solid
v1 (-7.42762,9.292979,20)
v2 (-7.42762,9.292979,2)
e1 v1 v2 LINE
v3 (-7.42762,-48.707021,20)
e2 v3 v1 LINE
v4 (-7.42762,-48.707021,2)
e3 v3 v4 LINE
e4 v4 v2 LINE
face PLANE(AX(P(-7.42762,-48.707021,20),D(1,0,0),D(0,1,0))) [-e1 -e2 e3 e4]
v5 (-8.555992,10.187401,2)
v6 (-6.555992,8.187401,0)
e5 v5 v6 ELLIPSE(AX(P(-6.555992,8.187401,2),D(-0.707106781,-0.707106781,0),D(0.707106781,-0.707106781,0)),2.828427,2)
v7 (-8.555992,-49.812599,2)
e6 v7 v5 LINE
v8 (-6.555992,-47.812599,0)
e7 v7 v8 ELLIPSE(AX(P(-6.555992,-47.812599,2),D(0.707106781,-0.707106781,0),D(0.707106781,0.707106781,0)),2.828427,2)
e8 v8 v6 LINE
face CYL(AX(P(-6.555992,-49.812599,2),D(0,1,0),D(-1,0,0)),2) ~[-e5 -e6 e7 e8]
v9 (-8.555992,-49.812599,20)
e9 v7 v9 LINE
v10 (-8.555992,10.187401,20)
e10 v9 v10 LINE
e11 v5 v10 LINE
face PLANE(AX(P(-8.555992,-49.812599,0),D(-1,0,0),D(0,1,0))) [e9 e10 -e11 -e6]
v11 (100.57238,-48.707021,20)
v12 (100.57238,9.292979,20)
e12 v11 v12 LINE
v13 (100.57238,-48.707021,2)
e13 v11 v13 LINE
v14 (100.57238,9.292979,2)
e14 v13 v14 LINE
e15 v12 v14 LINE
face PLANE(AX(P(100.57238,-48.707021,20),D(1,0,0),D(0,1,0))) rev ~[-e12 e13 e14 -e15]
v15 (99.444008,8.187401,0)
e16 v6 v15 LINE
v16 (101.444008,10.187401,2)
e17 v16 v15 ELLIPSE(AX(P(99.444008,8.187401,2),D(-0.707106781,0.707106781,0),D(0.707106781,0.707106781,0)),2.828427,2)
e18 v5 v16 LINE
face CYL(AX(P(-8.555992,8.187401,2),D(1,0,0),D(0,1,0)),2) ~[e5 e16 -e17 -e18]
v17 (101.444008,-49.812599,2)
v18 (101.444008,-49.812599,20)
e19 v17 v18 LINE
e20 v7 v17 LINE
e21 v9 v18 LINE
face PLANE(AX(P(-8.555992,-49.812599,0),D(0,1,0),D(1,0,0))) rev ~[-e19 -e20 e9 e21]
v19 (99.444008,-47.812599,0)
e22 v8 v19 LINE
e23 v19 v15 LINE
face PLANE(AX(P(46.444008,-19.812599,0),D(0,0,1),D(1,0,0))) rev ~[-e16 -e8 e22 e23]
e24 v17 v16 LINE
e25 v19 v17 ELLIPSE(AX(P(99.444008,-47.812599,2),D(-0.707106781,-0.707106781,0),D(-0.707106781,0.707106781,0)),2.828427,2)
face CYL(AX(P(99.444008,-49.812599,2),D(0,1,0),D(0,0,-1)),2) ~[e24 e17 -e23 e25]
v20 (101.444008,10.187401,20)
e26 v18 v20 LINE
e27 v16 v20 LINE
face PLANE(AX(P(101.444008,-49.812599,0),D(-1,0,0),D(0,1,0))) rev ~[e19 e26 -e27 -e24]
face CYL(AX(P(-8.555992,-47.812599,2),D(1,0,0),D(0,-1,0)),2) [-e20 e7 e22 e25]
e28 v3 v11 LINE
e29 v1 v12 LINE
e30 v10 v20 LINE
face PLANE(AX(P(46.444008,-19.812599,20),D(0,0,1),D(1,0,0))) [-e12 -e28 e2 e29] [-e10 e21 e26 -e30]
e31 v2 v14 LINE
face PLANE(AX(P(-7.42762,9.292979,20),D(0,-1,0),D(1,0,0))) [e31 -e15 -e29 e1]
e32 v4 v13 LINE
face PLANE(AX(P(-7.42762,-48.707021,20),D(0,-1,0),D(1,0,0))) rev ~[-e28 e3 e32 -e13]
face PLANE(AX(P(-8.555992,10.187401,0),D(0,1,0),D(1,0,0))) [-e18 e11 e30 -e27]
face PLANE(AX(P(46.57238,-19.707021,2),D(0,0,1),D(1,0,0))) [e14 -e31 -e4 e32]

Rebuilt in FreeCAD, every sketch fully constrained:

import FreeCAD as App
import Part
import Sketcher
from FreeCAD import Vector


def edges_at(feature, points):
    """Names of the edges that pass closest to the given points."""
    edges = feature.Shape.Edges
    near = lambda p: min(range(len(edges)), key=lambda i: edges[i].distToShape(Part.Vertex(*p))[0])
    return sorted({f"Edge{near(p) + 1}" for p in points})

doc = App.newDocument("Part")
params = doc.addObject("Spreadsheet::Sheet", "Params")
for row, (alias, value) in enumerate([
    ("sketch1_width", "110 mm"),
    ("sketch1_height", "60 mm"),
    ("pad1_length", "20 mm"),
    ("sketch2_width", "108 mm"),
    ("sketch2_height", "58 mm"),
    ("pocket1_length", "18 mm"),
    ("fillet_radius", "2 mm"),
], start=1):
    params.set(f"A{row}", alias)
    params.set(f"B{row}", "=" + value)
    params.setAlias(f"B{row}", alias)

body = doc.addObject("PartDesign::Body", "Body")

# Sketch on XY plane
sketch1 = body.newObject("Sketcher::SketchObject", "Sketch")
sketch1.AttachmentSupport = (doc.getObject("XY_Plane"), [""])
sketch1.MapMode = "FlatFace"
sketch1.addGeometry([
    Part.LineSegment(Vector(-9, 10, 0), Vector(-9, -50, 0)),
    Part.LineSegment(Vector(-9, -50, 0), Vector(101, -50, 0)),
    Part.LineSegment(Vector(101, -50, 0), Vector(101, 10, 0)),
    Part.LineSegment(Vector(101, 10, 0), Vector(-9, 10, 0)),
], False)
sketch1.addConstraint([
    Sketcher.Constraint("Coincident", 0, 2, 1, 1),
    Sketcher.Constraint("Coincident", 1, 2, 2, 1),
    Sketcher.Constraint("Coincident", 2, 2, 3, 1),
    Sketcher.Constraint("Coincident", 3, 2, 0, 1),
    Sketcher.Constraint("Vertical", 0),
    Sketcher.Constraint("Horizontal", 1),
    Sketcher.Constraint("Vertical", 2),
    Sketcher.Constraint("Horizontal", 3),
    Sketcher.Constraint("DistanceX", 1, 1, 1, 2, 110.0),
    Sketcher.Constraint("DistanceY", 0, 2, 0, 1, 60.0),
    Sketcher.Constraint("DistanceY", 0, 2, -1, 1, 49.812599),
    Sketcher.Constraint("DistanceX", 0, 2, -1, 1, 8.555992),
])
sketch1.setExpression("Constraints[8]", "Params.sketch1_width")
sketch1.setExpression("Constraints[9]", "Params.sketch1_height")
pad1 = body.newObject("PartDesign::Pad", "Pad")
pad1.Profile = sketch1
pad1.setExpression("Length", "Params.pad1_length")

# Sketch on XY plane
sketch2 = body.newObject("Sketcher::SketchObject", "Sketch001")
sketch2.AttachmentSupport = (doc.getObject("XY_Plane"), [""])
sketch2.MapMode = "FlatFace"
sketch2.AttachmentOffset = App.Placement(Vector(0, 0, 20), App.Rotation())
sketch2.addGeometry([
    Part.LineSegment(Vector(-7, 9, 0), Vector(-7, -49, 0)),
    Part.LineSegment(Vector(-7, -49, 0), Vector(101, -49, 0)),
    Part.LineSegment(Vector(101, -49, 0), Vector(101, 9, 0)),
    Part.LineSegment(Vector(101, 9, 0), Vector(-7, 9, 0)),
], False)
sketch2.addConstraint([
    Sketcher.Constraint("Coincident", 0, 2, 1, 1),
    Sketcher.Constraint("Coincident", 1, 2, 2, 1),
    Sketcher.Constraint("Coincident", 2, 2, 3, 1),
    Sketcher.Constraint("Coincident", 3, 2, 0, 1),
    Sketcher.Constraint("Vertical", 0),
    Sketcher.Constraint("Horizontal", 1),
    Sketcher.Constraint("Vertical", 2),
    Sketcher.Constraint("Horizontal", 3),
    Sketcher.Constraint("DistanceX", 1, 1, 1, 2, 108.0),
    Sketcher.Constraint("DistanceY", 0, 2, 0, 1, 58.0),
    Sketcher.Constraint("DistanceX", 0, 2, -1, 1, 7.42762),
    Sketcher.Constraint("DistanceY", 0, 2, -1, 1, 48.707021),
])
sketch2.setExpression("Constraints[8]", "Params.sketch2_width")
sketch2.setExpression("Constraints[9]", "Params.sketch2_height")
pocket1 = body.newObject("PartDesign::Pocket", "Pocket")
pocket1.Profile = sketch2
pocket1.setExpression("Length", "Params.pocket1_length")
doc.recompute()

fillet = body.newObject("PartDesign::Fillet", "Fillet")
fillet.Base = (pocket1, edges_at(pocket1, [
    (46.444, 10.187, 0),
    (101.444, -19.813, 0),
    (46.444, -49.813, 0),
    (-8.556, -19.813, 0),
]))
fillet.setExpression("Radius", "Params.fillet_radius")

doc.recompute()
